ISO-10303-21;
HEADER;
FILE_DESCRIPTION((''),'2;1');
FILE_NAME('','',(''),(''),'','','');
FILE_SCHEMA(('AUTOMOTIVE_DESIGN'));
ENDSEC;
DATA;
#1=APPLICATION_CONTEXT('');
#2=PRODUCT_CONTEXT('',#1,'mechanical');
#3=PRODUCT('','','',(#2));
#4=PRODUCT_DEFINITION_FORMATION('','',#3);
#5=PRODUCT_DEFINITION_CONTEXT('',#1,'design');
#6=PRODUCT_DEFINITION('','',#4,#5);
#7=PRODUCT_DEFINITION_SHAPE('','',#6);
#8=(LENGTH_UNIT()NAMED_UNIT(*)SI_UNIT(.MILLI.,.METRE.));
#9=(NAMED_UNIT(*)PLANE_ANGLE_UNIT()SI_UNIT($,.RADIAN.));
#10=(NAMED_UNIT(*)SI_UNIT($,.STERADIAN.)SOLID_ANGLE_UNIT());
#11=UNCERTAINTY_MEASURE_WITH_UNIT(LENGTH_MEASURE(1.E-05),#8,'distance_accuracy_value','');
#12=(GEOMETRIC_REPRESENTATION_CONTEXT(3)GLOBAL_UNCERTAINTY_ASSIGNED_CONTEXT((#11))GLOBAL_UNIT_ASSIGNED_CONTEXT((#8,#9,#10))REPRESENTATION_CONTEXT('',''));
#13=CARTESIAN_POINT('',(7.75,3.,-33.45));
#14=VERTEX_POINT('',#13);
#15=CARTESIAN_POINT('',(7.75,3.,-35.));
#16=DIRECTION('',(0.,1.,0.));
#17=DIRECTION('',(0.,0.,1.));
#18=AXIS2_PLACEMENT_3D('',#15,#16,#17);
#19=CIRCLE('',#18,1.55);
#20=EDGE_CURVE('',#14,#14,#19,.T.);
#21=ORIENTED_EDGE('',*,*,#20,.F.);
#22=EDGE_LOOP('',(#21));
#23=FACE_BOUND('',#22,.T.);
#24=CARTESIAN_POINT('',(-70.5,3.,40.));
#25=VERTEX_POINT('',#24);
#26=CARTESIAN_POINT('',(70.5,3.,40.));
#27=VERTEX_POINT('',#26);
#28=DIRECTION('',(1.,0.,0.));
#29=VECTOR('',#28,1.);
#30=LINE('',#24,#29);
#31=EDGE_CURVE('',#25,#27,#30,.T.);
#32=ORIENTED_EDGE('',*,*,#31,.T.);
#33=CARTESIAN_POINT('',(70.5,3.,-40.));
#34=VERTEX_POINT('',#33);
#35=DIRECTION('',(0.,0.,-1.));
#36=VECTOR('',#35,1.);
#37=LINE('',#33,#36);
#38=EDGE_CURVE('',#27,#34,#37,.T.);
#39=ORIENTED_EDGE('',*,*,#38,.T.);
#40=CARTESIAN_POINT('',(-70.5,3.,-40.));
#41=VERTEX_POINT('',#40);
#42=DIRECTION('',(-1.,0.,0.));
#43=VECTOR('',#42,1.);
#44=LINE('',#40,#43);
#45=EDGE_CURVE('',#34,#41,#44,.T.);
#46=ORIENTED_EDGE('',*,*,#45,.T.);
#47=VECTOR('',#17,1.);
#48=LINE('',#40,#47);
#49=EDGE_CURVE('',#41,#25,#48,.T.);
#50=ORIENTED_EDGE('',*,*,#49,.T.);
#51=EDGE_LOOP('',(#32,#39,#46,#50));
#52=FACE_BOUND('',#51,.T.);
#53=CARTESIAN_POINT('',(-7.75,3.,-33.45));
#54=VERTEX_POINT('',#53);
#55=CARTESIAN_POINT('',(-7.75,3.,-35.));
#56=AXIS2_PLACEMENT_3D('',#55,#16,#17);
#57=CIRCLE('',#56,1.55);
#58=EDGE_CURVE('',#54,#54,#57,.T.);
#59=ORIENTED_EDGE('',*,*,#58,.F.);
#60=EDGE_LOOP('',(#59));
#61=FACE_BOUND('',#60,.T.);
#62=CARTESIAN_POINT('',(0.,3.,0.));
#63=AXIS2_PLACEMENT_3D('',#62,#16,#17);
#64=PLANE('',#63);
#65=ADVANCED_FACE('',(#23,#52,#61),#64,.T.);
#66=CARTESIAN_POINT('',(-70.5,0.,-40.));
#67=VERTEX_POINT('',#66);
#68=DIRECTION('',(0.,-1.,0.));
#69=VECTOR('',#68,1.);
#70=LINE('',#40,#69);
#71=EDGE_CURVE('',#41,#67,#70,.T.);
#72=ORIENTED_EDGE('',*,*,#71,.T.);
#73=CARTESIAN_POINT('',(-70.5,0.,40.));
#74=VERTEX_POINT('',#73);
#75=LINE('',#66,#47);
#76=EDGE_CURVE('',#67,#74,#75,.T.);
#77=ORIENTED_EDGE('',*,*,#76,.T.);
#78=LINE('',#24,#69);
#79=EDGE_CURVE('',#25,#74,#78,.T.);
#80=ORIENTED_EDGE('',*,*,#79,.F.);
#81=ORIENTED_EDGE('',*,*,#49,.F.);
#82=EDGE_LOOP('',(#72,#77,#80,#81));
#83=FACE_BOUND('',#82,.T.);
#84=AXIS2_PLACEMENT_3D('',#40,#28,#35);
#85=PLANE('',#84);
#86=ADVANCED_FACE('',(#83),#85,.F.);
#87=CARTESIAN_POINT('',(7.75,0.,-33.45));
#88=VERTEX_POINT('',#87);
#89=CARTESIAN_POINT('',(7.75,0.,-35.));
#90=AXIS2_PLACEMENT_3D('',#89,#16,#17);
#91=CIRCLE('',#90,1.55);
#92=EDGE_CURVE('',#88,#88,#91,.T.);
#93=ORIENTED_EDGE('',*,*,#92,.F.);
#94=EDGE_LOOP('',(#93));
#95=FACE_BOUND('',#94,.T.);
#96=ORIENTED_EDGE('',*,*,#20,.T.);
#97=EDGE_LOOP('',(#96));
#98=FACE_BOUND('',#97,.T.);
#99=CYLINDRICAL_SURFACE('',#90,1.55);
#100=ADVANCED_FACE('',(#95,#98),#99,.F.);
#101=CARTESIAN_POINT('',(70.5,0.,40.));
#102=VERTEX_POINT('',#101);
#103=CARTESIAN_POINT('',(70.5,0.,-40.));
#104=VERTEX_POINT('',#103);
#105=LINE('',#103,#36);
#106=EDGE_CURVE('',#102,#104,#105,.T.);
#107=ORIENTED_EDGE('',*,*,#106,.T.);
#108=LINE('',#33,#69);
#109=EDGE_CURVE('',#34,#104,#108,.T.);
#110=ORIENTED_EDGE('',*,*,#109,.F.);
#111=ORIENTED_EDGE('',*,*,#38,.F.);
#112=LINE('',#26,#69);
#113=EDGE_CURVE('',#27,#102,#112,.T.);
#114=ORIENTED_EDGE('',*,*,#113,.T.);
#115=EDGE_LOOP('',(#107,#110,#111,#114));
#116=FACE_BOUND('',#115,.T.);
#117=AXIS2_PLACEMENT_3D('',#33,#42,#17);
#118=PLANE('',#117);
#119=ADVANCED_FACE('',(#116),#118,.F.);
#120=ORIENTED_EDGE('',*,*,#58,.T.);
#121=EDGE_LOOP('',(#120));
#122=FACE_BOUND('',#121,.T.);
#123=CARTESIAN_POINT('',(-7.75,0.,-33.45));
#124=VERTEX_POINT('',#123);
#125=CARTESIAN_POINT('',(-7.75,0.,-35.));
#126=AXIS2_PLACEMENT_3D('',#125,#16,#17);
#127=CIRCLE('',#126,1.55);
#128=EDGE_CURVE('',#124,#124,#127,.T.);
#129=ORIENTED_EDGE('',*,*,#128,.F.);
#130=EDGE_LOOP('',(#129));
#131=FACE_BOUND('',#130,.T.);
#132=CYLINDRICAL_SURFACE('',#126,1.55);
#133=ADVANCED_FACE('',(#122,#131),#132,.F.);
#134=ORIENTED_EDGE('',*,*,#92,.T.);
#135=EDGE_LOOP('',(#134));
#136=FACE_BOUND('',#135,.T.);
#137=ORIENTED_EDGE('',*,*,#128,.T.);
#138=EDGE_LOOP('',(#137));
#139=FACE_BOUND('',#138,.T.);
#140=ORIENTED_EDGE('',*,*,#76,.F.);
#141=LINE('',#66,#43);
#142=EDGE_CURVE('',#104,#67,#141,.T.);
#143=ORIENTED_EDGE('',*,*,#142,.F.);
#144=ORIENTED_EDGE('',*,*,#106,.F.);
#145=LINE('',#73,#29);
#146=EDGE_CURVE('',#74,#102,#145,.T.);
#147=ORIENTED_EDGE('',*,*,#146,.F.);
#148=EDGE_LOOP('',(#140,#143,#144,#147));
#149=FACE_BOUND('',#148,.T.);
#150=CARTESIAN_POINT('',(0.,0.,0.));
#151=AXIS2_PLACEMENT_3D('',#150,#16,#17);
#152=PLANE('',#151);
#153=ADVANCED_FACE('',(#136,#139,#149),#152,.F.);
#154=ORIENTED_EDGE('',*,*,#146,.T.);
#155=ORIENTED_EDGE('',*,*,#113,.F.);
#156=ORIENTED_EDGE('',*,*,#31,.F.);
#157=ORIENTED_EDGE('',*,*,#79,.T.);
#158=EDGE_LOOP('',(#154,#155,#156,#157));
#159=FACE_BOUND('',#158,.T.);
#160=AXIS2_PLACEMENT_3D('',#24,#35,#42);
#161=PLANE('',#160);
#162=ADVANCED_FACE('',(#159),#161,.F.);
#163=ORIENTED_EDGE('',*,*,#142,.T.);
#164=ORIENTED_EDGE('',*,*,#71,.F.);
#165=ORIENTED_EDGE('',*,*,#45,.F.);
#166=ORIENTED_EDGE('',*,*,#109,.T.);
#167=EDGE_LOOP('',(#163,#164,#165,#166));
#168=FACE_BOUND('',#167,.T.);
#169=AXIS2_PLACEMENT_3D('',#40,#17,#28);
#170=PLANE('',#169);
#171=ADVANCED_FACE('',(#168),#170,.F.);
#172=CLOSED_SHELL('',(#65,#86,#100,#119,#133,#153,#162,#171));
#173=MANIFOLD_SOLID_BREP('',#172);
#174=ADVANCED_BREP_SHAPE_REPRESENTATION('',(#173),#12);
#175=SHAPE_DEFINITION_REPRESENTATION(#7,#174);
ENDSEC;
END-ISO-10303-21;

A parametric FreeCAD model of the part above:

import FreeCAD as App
import Part
import Sketcher
from FreeCAD import Vector

doc = App.newDocument("Part")
body = doc.addObject("PartDesign::Body", "Body")

sketch1 = doc.addObject("Sketcher::SketchObject", "Sketch")
body.addObject(sketch1)
sketch1.AttachmentSupport = (doc.XZ_Plane, [""])
sketch1.MapMode = "FlatFace"
sketch1.addGeometry(Part.LineSegment(Vector(-70.5, -40, 0), Vector(-70.5, 40, 0)), False)
sketch1.addGeometry(Part.LineSegment(Vector(-70.5, 40, 0), Vector(70.5, 40, 0)), False)
sketch1.addGeometry(Part.LineSegment(Vector(70.5, 40, 0), Vector(70.5, -40, 0)), False)
sketch1.addGeometry(Part.LineSegment(Vector(70.5, -40, 0), Vector(-70.5, -40, 0)), False)
sketch1.addConstraint(Sketcher.Constraint("Coincident", 0, 2, 1, 1))
sketch1.addConstraint(Sketcher.Constraint("Coincident", 1, 2, 2, 1))
sketch1.addConstraint(Sketcher.Constraint("Coincident", 2, 2, 3, 1))
sketch1.addConstraint(Sketcher.Constraint("Coincident", 3, 2, 0, 1))
sketch1.addConstraint(Sketcher.Constraint("Vertical", 0))
sketch1.addConstraint(Sketcher.Constraint("Horizontal", 1))
sketch1.addConstraint(Sketcher.Constraint("Vertical", 2))
sketch1.addConstraint(Sketcher.Constraint("Horizontal", 3))
sketch1.addConstraint(Sketcher.Constraint("Symmetric", 0, 2, 2, 2, -1, 1))
sketch1.addConstraint(Sketcher.Constraint("DistanceX", 1, 1, 1, 2, 141.0))
sketch1.addConstraint(Sketcher.Constraint("DistanceY", 0, 1, 0, 2, 80.0))
pad1 = doc.addObject("PartDesign::Pad", "Pad")
body.addObject(pad1)
pad1.Profile = sketch1
pad1.Length = 3
pad1.Reversed = True

sketch2 = doc.addObject("Sketcher::SketchObject", "Sketch001")
body.addObject(sketch2)
sketch2.AttachmentSupport = (doc.XZ_Plane, [""])
sketch2.MapMode = "FlatFace"
sketch2.AttachmentOffset = App.Placement(Vector(0, 0, -3), App.Rotation())
sketch2.addGeometry(Part.Circle(Vector(-7.75, -35, 0), Vector(0, 0, 1), 1.55), False)
sketch2.addGeometry(Part.Circle(Vector(7.75, -35, 0), Vector(0, 0, 1), 1.55), False)
sketch2.addConstraint(Sketcher.Constraint("Equal", 0, 1))
sketch2.addConstraint(Sketcher.Constraint("Symmetric", 0, 3, 1, 3, -2))
sketch2.addConstraint(Sketcher.Constraint("Diameter", 0, 3.1))
sketch2.addConstraint(Sketcher.Constraint("DistanceY", 0, 3, -1, 1, 35.0))
sketch2.addConstraint(Sketcher.Constraint("DistanceX", 0, 3, 1, 3, 15.5))
pocket1 = doc.addObject("PartDesign::Pocket", "Pocket")
body.addObject(pocket1)
pocket1.Profile = sketch2
pocket1.Length = 3
pocket1.Reversed = True

doc.recompute()
